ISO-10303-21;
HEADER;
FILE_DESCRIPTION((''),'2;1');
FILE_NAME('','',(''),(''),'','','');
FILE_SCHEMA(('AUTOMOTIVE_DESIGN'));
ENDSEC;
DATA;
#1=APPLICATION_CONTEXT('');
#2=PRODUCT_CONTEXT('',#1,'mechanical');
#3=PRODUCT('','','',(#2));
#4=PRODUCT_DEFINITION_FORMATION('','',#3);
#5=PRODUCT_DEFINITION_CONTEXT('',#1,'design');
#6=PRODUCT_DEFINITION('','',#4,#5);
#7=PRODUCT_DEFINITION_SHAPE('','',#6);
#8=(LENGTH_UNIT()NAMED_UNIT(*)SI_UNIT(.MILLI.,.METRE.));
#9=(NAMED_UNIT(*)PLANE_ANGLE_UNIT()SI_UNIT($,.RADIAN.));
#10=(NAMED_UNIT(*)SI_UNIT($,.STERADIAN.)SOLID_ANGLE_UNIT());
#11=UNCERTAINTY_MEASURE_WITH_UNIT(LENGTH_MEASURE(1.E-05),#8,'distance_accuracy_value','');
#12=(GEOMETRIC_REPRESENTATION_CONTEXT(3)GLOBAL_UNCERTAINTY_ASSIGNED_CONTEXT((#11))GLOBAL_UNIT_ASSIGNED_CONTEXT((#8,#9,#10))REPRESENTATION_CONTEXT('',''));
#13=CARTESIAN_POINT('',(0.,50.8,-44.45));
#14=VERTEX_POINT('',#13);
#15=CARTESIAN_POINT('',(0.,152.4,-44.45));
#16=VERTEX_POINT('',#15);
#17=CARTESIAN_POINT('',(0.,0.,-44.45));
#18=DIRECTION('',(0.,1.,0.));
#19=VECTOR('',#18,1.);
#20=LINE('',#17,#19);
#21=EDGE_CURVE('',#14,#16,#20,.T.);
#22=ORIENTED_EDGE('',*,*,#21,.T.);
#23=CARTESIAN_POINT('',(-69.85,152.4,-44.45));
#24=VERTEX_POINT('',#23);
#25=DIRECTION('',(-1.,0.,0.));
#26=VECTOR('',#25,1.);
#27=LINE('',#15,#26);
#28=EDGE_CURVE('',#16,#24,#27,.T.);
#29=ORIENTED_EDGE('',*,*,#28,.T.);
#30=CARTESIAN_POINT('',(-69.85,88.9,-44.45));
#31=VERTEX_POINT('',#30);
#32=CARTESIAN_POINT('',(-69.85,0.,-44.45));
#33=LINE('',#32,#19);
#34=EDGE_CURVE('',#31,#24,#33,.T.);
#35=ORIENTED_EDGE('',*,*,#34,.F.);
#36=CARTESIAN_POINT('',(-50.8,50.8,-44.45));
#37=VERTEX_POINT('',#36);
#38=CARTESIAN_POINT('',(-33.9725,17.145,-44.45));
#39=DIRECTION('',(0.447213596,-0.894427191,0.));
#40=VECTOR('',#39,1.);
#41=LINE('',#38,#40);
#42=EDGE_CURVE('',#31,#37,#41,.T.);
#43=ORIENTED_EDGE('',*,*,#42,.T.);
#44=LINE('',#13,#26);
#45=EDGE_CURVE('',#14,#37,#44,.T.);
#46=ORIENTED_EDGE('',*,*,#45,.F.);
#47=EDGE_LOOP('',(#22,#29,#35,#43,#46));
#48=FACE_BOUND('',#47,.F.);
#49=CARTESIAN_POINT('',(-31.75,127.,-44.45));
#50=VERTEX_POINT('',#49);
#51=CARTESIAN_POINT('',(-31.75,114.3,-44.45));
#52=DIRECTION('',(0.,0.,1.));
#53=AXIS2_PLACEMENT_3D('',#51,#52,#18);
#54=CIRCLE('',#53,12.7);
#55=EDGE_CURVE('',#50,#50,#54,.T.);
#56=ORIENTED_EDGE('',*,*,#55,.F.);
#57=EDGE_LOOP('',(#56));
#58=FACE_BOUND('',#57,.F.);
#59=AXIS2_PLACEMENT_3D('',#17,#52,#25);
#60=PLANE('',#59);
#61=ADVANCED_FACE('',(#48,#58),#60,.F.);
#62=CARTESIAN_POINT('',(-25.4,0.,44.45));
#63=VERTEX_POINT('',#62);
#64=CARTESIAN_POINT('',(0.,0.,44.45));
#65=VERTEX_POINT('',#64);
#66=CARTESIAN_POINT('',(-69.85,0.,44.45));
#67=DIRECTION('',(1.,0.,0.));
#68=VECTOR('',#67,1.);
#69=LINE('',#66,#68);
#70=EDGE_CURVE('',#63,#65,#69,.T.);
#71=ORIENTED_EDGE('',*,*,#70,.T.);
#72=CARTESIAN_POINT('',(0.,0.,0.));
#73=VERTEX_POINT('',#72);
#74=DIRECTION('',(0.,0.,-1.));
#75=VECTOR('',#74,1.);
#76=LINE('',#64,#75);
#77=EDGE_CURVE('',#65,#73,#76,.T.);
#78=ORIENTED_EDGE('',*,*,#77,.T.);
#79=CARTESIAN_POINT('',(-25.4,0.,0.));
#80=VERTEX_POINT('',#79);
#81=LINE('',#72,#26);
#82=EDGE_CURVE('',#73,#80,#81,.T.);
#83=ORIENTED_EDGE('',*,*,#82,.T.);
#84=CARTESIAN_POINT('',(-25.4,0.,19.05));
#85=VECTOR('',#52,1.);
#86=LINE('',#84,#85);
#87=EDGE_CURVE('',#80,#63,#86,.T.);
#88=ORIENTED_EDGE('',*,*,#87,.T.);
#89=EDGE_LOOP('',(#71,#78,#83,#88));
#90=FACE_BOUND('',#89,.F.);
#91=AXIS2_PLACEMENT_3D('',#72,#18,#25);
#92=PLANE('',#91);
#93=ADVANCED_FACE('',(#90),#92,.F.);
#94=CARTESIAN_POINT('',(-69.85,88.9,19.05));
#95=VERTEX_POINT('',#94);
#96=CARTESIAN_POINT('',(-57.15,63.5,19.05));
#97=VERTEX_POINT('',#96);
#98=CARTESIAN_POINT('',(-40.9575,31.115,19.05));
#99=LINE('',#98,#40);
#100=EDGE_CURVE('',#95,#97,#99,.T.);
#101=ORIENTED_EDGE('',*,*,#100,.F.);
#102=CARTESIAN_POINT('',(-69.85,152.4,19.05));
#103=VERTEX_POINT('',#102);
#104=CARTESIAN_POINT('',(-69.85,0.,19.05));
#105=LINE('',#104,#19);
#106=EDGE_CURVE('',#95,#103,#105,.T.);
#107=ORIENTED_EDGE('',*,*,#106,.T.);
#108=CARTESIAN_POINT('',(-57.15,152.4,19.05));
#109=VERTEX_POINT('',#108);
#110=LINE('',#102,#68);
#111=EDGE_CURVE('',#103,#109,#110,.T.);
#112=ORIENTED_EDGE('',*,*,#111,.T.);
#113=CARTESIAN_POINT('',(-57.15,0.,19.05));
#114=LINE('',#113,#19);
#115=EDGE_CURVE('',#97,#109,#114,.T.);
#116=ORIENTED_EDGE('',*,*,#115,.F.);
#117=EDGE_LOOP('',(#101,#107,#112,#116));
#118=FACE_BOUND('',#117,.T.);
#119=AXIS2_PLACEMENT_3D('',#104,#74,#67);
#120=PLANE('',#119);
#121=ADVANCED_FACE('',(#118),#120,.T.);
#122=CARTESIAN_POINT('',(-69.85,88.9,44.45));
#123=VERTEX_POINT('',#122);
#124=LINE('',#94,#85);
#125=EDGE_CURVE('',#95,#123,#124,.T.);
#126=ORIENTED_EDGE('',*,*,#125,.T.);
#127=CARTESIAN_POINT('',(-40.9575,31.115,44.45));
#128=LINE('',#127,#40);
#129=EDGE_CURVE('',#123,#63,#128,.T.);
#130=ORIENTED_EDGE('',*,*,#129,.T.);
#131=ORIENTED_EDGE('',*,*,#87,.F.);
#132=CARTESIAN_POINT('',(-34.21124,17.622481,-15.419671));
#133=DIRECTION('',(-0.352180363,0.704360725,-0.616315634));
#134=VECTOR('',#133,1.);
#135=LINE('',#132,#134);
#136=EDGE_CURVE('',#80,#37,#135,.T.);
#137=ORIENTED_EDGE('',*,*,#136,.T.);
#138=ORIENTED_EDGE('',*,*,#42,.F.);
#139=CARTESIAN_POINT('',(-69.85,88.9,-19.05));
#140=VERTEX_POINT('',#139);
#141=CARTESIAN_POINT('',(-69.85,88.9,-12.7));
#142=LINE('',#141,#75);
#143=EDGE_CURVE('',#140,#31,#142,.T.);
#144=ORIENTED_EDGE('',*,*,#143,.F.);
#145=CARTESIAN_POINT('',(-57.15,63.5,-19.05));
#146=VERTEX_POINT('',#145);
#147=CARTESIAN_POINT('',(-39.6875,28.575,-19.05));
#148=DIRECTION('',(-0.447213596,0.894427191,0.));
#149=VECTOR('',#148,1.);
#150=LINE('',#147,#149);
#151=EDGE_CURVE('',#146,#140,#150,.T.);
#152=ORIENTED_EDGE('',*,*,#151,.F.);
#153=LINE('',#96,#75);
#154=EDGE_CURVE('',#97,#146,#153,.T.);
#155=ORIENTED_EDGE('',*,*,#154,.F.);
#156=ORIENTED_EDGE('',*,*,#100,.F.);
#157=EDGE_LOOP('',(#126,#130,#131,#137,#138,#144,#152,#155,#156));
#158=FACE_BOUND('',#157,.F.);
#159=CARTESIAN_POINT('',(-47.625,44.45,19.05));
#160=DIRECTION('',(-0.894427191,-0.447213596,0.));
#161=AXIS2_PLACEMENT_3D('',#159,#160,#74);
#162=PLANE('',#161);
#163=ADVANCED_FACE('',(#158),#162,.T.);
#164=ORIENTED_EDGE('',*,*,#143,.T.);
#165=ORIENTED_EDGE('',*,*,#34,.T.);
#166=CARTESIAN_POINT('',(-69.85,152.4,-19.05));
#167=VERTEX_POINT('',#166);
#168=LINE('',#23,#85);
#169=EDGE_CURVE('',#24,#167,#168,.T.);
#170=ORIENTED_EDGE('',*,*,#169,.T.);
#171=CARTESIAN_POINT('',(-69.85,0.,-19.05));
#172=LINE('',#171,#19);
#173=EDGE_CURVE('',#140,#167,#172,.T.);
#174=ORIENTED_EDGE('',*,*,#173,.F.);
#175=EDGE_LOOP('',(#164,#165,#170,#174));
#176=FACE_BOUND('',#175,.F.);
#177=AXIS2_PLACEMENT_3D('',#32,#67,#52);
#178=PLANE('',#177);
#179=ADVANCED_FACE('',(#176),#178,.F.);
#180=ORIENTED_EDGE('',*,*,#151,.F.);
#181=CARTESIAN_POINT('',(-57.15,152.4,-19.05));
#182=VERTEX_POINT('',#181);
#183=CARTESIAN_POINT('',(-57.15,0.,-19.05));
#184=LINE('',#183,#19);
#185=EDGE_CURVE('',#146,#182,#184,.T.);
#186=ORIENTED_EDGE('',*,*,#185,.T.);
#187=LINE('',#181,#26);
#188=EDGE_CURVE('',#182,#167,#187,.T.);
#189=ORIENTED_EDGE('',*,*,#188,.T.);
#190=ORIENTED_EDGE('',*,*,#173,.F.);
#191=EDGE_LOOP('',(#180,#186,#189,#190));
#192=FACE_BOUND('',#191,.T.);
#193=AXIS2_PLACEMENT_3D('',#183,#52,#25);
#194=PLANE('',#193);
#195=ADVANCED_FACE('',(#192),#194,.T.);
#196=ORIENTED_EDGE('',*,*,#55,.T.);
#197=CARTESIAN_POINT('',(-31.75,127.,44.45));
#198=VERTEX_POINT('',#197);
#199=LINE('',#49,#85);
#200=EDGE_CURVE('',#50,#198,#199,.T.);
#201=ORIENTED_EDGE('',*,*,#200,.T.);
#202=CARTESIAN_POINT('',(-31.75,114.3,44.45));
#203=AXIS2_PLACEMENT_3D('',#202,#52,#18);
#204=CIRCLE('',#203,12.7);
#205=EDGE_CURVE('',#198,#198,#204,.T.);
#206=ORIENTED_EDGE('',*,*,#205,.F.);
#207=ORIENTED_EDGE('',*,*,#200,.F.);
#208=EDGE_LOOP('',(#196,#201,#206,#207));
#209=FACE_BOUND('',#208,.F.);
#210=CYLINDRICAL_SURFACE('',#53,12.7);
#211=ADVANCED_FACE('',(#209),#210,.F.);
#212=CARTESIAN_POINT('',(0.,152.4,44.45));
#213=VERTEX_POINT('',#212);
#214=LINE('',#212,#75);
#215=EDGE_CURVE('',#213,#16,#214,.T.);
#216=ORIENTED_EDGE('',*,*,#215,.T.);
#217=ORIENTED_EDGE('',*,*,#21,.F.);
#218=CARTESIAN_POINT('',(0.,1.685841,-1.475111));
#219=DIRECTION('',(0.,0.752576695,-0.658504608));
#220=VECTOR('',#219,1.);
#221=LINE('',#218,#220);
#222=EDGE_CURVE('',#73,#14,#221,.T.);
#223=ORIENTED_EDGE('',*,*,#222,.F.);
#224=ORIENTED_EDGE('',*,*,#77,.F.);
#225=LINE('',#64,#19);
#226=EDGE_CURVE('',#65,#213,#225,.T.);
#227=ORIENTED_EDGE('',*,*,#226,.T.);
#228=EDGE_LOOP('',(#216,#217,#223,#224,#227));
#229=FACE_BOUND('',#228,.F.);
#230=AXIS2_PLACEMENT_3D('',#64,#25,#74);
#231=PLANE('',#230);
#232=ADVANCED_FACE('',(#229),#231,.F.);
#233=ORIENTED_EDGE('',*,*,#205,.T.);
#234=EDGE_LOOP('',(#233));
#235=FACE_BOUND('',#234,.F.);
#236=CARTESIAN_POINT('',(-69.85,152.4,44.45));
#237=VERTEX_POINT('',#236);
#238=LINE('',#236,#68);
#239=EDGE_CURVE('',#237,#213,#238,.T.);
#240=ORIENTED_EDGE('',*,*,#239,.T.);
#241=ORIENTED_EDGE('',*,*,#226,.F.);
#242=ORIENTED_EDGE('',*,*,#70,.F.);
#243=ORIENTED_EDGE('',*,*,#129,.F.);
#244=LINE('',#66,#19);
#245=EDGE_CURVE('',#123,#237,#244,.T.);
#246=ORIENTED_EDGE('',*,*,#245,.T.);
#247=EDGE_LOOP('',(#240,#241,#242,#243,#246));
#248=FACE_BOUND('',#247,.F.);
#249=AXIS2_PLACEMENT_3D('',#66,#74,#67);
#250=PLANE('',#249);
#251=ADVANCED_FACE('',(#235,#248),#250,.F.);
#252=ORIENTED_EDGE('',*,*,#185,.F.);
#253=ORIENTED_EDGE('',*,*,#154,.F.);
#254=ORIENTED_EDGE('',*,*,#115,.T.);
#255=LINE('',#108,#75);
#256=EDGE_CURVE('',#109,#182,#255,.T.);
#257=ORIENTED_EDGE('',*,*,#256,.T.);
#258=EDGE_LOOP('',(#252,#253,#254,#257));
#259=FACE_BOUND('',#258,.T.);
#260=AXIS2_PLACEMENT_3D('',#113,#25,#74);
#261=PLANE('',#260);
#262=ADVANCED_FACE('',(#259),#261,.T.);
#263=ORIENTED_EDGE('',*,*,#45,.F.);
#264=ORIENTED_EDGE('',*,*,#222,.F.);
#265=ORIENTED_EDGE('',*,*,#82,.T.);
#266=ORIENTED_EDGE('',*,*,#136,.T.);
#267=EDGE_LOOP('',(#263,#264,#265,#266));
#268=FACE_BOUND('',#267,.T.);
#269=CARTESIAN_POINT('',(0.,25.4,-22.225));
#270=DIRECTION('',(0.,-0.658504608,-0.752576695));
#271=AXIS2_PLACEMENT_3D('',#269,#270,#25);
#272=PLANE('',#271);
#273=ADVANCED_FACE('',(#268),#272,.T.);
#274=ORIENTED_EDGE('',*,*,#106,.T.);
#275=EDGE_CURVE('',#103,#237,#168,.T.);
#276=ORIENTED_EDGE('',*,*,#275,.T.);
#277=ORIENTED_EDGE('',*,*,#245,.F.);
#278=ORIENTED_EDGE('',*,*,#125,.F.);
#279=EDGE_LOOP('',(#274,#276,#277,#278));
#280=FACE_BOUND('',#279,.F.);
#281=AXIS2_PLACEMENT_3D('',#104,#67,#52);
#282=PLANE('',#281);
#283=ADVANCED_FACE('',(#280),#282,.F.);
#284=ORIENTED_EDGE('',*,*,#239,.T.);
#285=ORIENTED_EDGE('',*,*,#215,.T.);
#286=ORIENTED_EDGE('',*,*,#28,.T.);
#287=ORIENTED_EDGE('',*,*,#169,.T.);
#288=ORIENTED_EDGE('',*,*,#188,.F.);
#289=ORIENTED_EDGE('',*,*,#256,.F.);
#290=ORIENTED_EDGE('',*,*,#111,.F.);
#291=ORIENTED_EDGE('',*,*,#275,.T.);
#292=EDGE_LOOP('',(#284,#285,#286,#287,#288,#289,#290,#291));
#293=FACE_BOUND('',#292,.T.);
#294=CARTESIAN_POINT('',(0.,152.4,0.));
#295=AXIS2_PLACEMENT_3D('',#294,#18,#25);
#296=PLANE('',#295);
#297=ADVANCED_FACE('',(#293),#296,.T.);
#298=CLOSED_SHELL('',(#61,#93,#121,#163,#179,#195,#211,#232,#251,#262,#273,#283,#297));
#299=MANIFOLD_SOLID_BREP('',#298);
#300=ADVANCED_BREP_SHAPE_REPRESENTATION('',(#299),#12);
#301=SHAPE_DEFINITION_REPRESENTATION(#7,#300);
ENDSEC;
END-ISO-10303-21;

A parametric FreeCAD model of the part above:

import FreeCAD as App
import Part
import Sketcher
from FreeCAD import Vector
Q = App.Units.Quantity


def edges_at(feature, points):
    """Names of the edges that pass closest to the given points."""
    edges = feature.Shape.Edges
    near = lambda p: min(range(len(edges)), key=lambda i: edges[i].distToShape(Part.Vertex(*p))[0])
    return sorted({f"Edge{near(p) + 1}" for p in points})


def add_polygon(sketch, points):
    """Adds a closed chain of lines whose ends are joined by coincident constraints."""
    first, n = sketch.GeometryCount, len(points)
    for a, b in zip(points, points[1:] + points[:1]):
        sketch.addGeometry(Part.LineSegment(App.Vector(*a, 0), App.Vector(*b, 0)), False)
    for i in range(n):
        sketch.addConstraint(Sketcher.Constraint("Coincident", first + i, 2, first + (i + 1) % n, 1))

doc = App.newDocument("Part")
body = doc.addObject("PartDesign::Body", "Body")

# Sketch on XZ plane
sketch1 = doc.addObject("Sketcher::SketchObject", "Sketch")
body.addObject(sketch1)
sketch1.AttachmentSupport = (doc.XZ_Plane, [""])
sketch1.MapMode = "FlatFace"
add_polygon(sketch1, [(-70, 19), (-70, 44), (0, 44), (0, -44), (-70, -44), (-70, -19), (-57, -19), (-57, 19)])  # lines 0-7
sketch1.addConstraint([
    Sketcher.Constraint("Vertical", 0),
    Sketcher.Constraint("Horizontal", 1),
    Sketcher.Constraint("Vertical", 2),
    Sketcher.Constraint("Horizontal", 3),
    Sketcher.Constraint("Vertical", 4),
    Sketcher.Constraint("Horizontal", 5),
    Sketcher.Constraint("Vertical", 6),
    Sketcher.Constraint("Horizontal", 7),
    Sketcher.Constraint("Symmetric", 1, 2, 2, 2, -1, 1),
    Sketcher.Constraint("Symmetric", 4, 2, 7, 2, -1),
    Sketcher.Constraint("DistanceX", 5, 1, 5, 2, Q("0.5 in")),
    Sketcher.Constraint("DistanceY", 2, 2, 2, 1, Q("3.5 in")),
    Sketcher.Constraint("DistanceY", 6, 1, 6, 2, Q("1.5 in")),
    Sketcher.Constraint("DistanceX", 1, 1, 1, 2, Q("2.75 in")),
])
pad1 = doc.addObject("PartDesign::Pad", "Pad")
body.addObject(pad1)
pad1.Profile = sketch1
pad1.Length = Q("6 in")
pad1.Reversed = True
doc.recompute()

chamfer = doc.addObject("PartDesign::Chamfer", "Chamfer")
body.addObject(chamfer)
chamfer.Base = (pad1, edges_at(pad1, [(-69.85, 0, 31.75)]))
chamfer.ChamferType = "Two distances"
chamfer.Size = Q("3.5 in")
chamfer.Size2 = Q("1.75 in")
doc.recompute()

chamfer2 = doc.addObject("PartDesign::Chamfer", "Chamfer001")
body.addObject(chamfer2)
chamfer2.Base = (chamfer, edges_at(chamfer, [(-12.7, 0, -44.45)]))
chamfer2.ChamferType = "Two distances"
chamfer2.Size = Q("1.75 in")
chamfer2.Size2 = Q("2 in")

# Sketch on XY plane
sketch2 = doc.addObject("Sketcher::SketchObject", "Sketch001")
body.addObject(sketch2)
sketch2.AttachmentSupport = (doc.XY_Plane, [""])
sketch2.MapMode = "FlatFace"
sketch2.AttachmentOffset = App.Placement(Vector(0, 0, -1.75 * 25.4), App.Rotation())
sketch2.addGeometry(Part.Circle(Vector(-32, 114, 0), Vector(0, 0, 1), 13), False)
sketch2.addConstraint([
    Sketcher.Constraint("Diameter", 0, Q("1 in")),
    Sketcher.Constraint("DistanceY", -1, 1, 0, 3, Q("4.5 in")),
    Sketcher.Constraint("DistanceX", 0, 3, -1, 1, Q("1.25 in")),
])
doc.recompute()
hole = doc.addObject("PartDesign::Hole", "Hole")
body.addObject(hole)
hole.Profile = sketch2
hole.ThreadType = "None"
hole.Diameter = Q("1 in")
hole.DepthType = "ThroughAll"
hole.Reversed = True

doc.recompute()
